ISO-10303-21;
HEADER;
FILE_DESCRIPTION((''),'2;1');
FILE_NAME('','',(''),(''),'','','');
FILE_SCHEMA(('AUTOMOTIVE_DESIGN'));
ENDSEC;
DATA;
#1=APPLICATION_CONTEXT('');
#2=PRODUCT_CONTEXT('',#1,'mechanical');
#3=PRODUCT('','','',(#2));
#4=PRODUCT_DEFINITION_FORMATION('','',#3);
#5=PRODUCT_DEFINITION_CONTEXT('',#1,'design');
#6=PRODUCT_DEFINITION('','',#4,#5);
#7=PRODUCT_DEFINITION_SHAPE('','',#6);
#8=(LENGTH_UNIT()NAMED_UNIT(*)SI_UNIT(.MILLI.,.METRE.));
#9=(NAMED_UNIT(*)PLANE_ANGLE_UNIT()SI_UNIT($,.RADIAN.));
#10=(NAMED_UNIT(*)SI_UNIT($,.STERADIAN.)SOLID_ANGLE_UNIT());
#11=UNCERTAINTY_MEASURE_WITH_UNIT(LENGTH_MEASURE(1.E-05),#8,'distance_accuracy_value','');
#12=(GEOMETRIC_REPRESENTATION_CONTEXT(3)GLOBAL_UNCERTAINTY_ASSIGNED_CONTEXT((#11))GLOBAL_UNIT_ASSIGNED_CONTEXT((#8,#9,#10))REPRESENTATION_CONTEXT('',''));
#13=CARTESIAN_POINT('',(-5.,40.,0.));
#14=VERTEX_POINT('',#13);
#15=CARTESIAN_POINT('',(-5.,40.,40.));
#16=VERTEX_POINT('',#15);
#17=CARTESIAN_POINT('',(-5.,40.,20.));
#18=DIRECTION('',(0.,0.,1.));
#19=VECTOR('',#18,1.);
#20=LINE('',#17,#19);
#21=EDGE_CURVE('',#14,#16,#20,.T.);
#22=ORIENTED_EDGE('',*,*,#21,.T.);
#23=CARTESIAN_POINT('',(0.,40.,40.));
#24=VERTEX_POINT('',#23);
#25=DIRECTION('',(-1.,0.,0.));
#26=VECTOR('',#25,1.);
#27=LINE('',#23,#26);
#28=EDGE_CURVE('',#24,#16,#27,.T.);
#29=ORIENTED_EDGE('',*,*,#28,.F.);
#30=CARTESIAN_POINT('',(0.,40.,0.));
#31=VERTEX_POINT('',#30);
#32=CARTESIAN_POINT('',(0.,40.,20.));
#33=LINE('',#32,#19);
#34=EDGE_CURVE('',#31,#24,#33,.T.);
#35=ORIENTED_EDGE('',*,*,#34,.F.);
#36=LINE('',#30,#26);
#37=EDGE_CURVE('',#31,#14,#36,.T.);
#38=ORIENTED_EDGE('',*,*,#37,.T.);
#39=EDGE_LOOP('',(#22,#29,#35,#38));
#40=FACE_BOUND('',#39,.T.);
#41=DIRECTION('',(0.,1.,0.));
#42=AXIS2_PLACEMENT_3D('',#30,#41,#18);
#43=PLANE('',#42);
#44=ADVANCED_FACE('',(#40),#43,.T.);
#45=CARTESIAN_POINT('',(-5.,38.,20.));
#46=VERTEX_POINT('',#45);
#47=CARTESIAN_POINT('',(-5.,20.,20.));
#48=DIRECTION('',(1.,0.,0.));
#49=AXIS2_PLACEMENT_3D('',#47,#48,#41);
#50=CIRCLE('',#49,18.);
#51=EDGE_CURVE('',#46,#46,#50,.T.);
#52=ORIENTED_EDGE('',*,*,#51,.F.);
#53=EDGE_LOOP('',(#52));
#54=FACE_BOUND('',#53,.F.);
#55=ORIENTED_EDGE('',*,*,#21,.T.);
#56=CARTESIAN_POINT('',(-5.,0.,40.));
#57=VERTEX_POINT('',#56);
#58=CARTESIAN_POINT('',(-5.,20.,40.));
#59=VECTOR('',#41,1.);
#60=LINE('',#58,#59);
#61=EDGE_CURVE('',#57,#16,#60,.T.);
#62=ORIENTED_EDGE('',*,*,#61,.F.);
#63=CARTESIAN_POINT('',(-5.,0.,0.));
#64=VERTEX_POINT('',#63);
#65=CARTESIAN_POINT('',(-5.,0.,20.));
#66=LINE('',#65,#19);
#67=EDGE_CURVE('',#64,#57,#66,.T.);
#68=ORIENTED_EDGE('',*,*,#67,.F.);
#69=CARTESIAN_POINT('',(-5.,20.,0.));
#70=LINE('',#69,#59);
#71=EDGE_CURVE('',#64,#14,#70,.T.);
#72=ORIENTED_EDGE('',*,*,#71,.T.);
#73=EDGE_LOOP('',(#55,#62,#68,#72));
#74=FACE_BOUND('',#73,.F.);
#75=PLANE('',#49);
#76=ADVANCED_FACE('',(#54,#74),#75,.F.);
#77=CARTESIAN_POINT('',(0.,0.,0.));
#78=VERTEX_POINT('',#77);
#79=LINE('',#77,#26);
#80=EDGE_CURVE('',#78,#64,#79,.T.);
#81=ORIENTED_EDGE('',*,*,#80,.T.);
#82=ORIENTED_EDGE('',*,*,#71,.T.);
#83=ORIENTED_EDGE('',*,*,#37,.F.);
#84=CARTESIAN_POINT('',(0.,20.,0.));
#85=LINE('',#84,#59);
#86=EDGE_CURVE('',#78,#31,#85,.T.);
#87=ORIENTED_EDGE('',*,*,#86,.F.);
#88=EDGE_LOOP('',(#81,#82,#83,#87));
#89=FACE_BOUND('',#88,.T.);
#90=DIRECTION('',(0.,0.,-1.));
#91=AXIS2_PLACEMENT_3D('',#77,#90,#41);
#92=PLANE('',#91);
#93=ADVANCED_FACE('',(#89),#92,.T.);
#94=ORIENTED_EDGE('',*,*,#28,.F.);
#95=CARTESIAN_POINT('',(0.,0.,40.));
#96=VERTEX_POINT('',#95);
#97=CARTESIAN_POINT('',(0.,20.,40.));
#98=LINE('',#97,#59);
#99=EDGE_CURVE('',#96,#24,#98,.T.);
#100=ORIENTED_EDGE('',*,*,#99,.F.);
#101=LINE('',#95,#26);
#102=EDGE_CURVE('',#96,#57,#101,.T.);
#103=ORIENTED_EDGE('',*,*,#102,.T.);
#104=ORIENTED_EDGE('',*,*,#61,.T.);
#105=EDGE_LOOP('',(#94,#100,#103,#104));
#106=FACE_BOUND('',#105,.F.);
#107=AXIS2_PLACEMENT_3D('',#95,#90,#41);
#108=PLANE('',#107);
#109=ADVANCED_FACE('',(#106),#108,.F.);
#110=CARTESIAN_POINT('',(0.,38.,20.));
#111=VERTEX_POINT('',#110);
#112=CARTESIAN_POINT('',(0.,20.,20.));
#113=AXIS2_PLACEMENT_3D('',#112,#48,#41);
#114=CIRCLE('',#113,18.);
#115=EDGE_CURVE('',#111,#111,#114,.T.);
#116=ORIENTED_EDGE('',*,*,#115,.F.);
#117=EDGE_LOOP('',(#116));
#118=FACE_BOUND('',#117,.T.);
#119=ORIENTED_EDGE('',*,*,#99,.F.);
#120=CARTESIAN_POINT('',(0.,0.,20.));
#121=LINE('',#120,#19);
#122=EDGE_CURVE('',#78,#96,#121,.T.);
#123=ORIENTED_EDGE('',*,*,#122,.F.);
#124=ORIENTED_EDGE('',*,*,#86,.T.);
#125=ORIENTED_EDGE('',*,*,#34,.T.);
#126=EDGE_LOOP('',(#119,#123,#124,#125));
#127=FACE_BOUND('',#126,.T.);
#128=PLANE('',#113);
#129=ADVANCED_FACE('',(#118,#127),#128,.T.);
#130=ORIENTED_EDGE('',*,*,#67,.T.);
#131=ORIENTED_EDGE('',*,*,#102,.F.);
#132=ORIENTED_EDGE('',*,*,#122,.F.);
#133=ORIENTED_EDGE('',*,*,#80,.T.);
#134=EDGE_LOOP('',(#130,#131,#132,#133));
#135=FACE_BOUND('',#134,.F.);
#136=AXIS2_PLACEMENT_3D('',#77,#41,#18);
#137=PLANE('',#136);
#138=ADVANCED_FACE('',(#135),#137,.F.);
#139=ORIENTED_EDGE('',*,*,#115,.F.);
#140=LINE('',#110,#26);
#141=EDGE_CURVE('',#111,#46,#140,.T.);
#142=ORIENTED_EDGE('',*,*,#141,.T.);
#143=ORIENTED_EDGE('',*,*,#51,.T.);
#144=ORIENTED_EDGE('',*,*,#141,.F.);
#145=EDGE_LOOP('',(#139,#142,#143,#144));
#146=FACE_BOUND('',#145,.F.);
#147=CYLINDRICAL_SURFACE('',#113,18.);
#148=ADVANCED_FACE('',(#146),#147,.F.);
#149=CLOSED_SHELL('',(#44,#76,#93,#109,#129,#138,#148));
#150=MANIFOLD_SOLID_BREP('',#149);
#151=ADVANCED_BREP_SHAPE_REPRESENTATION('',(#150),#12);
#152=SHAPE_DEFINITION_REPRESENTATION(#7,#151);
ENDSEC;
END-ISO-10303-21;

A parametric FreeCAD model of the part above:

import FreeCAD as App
import Part
import Sketcher
Q = App.Units.Quantity


def add_polygon(sketch, points):
    """Adds a closed chain of lines whose ends are joined by coincident constraints."""
    first, n = sketch.GeometryCount, len(points)
    for a, b in zip(points, points[1:] + points[:1]):
        sketch.addGeometry(Part.LineSegment(App.Vector(*a, 0), App.Vector(*b, 0)), False)
    for i in range(n):
        sketch.addConstraint(Sketcher.Constraint("Coincident", first + i, 2, first + (i + 1) % n, 1))

doc = App.newDocument("Part")
body = doc.addObject("PartDesign::Body", "Body")

sketch1 = body.newObject("Sketcher::SketchObject", "Sketch")
sketch1.AttachmentSupport = (doc.getObject("YZ_Plane"), [""])
sketch1.MapMode = "FlatFace"
add_polygon(sketch1, [(0, 40), (0, 0), (40, 0), (40, 40)])
sketch1.addConstraint([
    Sketcher.Constraint("Vertical", 0),
    Sketcher.Constraint("Horizontal", 1),
    Sketcher.Constraint("Vertical", 2),
    Sketcher.Constraint("Horizontal", 3),
    Sketcher.Constraint("Coincident", 0, 2, -1, 1),
    Sketcher.Constraint("Equal", 3, 0),
    Sketcher.Constraint("DistanceX", 1, 1, 1, 2, Q("40 mm")),
])
pad1 = body.newObject("PartDesign::Pad", "Pad")
pad1.Profile = sketch1
pad1.Length = 5
pad1.Reversed = True

sketch2 = body.newObject("Sketcher::SketchObject", "Sketch001")
sketch2.AttachmentSupport = (doc.getObject("YZ_Plane"), [""])
sketch2.MapMode = "FlatFace"
sketch2.addGeometry(Part.Circle(App.Vector(20, 20, 0), App.Vector(0, 0, 1), 18), False)
sketch2.addConstraint([
    Sketcher.Constraint("Diameter", 0, Q("36 mm")),
    Sketcher.Constraint("DistanceX", -1, 1, 0, 3, Q("20 mm")),
    Sketcher.Constraint("DistanceY", -1, 1, 0, 3, Q("20 mm")),
])
pocket1 = body.newObject("PartDesign::Pocket", "Pocket")
pocket1.Profile = sketch2
pocket1.Type = "ThroughAll"

doc.recompute()
